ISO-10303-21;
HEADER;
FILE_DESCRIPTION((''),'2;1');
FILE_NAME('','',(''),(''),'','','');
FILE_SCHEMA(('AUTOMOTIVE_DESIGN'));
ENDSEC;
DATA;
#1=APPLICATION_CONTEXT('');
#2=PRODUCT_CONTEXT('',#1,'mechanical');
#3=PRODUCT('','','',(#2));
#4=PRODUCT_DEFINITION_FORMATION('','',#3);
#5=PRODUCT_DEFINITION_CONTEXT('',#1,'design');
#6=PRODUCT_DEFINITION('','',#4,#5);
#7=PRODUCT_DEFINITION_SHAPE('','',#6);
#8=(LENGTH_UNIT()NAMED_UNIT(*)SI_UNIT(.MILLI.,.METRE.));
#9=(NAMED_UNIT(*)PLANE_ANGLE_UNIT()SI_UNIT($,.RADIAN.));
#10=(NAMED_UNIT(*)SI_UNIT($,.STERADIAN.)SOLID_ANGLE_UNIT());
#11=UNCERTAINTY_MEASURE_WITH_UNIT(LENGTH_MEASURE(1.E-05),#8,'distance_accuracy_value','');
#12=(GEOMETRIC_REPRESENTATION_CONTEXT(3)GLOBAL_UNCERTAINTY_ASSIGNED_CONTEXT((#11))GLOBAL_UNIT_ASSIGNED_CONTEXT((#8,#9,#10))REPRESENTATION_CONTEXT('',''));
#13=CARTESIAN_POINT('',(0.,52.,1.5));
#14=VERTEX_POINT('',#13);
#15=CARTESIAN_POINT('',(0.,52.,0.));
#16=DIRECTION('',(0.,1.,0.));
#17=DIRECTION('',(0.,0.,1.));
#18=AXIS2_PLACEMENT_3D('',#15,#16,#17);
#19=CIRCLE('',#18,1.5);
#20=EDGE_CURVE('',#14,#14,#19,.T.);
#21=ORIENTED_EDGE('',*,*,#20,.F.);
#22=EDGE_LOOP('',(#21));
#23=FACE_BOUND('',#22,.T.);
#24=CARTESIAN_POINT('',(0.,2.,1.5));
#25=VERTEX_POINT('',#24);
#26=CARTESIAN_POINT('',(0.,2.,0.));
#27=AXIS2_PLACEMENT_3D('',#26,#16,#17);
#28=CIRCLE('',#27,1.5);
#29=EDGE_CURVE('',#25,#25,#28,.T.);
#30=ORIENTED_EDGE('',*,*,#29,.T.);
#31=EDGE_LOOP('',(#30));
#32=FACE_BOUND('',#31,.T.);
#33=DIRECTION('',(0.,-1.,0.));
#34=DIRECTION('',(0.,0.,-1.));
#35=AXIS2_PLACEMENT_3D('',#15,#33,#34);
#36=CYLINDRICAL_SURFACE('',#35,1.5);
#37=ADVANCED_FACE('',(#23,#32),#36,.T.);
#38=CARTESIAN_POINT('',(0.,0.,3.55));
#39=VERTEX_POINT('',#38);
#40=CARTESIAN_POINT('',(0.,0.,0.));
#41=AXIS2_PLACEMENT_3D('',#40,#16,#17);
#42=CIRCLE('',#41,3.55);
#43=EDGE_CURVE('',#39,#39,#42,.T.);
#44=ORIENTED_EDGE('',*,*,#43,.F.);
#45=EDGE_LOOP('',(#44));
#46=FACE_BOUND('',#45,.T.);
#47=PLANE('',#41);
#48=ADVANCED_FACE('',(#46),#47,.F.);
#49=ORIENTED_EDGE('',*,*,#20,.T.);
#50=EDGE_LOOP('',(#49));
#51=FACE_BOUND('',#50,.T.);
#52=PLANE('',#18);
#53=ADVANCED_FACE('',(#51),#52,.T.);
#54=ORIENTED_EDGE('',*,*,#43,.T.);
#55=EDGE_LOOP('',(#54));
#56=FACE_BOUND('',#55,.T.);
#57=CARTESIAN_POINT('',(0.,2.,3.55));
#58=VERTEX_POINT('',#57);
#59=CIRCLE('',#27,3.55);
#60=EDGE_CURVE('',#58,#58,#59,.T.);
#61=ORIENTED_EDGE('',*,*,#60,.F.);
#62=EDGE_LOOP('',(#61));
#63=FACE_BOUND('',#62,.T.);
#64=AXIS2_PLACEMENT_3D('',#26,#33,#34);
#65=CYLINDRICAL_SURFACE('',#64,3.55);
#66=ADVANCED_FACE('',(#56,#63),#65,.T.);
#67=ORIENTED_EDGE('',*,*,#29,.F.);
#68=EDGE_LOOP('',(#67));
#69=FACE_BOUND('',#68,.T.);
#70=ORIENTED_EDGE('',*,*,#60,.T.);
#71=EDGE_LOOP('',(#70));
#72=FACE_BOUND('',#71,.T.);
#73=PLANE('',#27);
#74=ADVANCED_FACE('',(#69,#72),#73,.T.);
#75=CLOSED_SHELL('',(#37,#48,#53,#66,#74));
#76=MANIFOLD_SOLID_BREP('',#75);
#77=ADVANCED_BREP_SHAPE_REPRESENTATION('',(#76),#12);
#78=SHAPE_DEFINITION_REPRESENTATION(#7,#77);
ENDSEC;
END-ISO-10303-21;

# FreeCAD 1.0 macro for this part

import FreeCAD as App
import Part
import Sketcher

V = App.Vector

doc = App.newDocument("Part")
body = doc.addObject("PartDesign::Body", "Body")

sketch1 = body.newObject("Sketcher::SketchObject", "Sketch")
sketch1.AttachmentSupport = (doc.getObject("XZ_Plane"), [""])
sketch1.MapMode = "FlatFace"
sketch1.addGeometry(Part.Circle(V(0, 0, 0), V(0, 0, 1), 3.5), False)
sketch1.addConstraint(Sketcher.Constraint("Coincident", 0, 3, -1, 1))
sketch1.addConstraint(Sketcher.Constraint("Diameter", 0, 7.1))
pad1 = body.newObject("PartDesign::Pad", "Pad")
pad1.Profile = sketch1
pad1.Length = 2
pad1.Reversed = True

sketch2 = body.newObject("Sketcher::SketchObject", "Sketch001")
sketch2.AttachmentSupport = (doc.getObject("XZ_Plane"), [""])
sketch2.MapMode = "FlatFace"
sketch2.AttachmentOffset = App.Placement(V(0, 0, -2), App.Rotation())
sketch2.addGeometry(Part.Circle(V(0, 0, 0), V(0, 0, 1), 1.5), False)
sketch2.addConstraint(Sketcher.Constraint("Coincident", 0, 3, -1, 1))
sketch2.addConstraint(Sketcher.Constraint("Diameter", 0, 3.0))
pad2 = body.newObject("PartDesign::Pad", "Pad001")
pad2.Profile = sketch2
pad2.Length = 50
pad2.Reversed = True

doc.recompute()
